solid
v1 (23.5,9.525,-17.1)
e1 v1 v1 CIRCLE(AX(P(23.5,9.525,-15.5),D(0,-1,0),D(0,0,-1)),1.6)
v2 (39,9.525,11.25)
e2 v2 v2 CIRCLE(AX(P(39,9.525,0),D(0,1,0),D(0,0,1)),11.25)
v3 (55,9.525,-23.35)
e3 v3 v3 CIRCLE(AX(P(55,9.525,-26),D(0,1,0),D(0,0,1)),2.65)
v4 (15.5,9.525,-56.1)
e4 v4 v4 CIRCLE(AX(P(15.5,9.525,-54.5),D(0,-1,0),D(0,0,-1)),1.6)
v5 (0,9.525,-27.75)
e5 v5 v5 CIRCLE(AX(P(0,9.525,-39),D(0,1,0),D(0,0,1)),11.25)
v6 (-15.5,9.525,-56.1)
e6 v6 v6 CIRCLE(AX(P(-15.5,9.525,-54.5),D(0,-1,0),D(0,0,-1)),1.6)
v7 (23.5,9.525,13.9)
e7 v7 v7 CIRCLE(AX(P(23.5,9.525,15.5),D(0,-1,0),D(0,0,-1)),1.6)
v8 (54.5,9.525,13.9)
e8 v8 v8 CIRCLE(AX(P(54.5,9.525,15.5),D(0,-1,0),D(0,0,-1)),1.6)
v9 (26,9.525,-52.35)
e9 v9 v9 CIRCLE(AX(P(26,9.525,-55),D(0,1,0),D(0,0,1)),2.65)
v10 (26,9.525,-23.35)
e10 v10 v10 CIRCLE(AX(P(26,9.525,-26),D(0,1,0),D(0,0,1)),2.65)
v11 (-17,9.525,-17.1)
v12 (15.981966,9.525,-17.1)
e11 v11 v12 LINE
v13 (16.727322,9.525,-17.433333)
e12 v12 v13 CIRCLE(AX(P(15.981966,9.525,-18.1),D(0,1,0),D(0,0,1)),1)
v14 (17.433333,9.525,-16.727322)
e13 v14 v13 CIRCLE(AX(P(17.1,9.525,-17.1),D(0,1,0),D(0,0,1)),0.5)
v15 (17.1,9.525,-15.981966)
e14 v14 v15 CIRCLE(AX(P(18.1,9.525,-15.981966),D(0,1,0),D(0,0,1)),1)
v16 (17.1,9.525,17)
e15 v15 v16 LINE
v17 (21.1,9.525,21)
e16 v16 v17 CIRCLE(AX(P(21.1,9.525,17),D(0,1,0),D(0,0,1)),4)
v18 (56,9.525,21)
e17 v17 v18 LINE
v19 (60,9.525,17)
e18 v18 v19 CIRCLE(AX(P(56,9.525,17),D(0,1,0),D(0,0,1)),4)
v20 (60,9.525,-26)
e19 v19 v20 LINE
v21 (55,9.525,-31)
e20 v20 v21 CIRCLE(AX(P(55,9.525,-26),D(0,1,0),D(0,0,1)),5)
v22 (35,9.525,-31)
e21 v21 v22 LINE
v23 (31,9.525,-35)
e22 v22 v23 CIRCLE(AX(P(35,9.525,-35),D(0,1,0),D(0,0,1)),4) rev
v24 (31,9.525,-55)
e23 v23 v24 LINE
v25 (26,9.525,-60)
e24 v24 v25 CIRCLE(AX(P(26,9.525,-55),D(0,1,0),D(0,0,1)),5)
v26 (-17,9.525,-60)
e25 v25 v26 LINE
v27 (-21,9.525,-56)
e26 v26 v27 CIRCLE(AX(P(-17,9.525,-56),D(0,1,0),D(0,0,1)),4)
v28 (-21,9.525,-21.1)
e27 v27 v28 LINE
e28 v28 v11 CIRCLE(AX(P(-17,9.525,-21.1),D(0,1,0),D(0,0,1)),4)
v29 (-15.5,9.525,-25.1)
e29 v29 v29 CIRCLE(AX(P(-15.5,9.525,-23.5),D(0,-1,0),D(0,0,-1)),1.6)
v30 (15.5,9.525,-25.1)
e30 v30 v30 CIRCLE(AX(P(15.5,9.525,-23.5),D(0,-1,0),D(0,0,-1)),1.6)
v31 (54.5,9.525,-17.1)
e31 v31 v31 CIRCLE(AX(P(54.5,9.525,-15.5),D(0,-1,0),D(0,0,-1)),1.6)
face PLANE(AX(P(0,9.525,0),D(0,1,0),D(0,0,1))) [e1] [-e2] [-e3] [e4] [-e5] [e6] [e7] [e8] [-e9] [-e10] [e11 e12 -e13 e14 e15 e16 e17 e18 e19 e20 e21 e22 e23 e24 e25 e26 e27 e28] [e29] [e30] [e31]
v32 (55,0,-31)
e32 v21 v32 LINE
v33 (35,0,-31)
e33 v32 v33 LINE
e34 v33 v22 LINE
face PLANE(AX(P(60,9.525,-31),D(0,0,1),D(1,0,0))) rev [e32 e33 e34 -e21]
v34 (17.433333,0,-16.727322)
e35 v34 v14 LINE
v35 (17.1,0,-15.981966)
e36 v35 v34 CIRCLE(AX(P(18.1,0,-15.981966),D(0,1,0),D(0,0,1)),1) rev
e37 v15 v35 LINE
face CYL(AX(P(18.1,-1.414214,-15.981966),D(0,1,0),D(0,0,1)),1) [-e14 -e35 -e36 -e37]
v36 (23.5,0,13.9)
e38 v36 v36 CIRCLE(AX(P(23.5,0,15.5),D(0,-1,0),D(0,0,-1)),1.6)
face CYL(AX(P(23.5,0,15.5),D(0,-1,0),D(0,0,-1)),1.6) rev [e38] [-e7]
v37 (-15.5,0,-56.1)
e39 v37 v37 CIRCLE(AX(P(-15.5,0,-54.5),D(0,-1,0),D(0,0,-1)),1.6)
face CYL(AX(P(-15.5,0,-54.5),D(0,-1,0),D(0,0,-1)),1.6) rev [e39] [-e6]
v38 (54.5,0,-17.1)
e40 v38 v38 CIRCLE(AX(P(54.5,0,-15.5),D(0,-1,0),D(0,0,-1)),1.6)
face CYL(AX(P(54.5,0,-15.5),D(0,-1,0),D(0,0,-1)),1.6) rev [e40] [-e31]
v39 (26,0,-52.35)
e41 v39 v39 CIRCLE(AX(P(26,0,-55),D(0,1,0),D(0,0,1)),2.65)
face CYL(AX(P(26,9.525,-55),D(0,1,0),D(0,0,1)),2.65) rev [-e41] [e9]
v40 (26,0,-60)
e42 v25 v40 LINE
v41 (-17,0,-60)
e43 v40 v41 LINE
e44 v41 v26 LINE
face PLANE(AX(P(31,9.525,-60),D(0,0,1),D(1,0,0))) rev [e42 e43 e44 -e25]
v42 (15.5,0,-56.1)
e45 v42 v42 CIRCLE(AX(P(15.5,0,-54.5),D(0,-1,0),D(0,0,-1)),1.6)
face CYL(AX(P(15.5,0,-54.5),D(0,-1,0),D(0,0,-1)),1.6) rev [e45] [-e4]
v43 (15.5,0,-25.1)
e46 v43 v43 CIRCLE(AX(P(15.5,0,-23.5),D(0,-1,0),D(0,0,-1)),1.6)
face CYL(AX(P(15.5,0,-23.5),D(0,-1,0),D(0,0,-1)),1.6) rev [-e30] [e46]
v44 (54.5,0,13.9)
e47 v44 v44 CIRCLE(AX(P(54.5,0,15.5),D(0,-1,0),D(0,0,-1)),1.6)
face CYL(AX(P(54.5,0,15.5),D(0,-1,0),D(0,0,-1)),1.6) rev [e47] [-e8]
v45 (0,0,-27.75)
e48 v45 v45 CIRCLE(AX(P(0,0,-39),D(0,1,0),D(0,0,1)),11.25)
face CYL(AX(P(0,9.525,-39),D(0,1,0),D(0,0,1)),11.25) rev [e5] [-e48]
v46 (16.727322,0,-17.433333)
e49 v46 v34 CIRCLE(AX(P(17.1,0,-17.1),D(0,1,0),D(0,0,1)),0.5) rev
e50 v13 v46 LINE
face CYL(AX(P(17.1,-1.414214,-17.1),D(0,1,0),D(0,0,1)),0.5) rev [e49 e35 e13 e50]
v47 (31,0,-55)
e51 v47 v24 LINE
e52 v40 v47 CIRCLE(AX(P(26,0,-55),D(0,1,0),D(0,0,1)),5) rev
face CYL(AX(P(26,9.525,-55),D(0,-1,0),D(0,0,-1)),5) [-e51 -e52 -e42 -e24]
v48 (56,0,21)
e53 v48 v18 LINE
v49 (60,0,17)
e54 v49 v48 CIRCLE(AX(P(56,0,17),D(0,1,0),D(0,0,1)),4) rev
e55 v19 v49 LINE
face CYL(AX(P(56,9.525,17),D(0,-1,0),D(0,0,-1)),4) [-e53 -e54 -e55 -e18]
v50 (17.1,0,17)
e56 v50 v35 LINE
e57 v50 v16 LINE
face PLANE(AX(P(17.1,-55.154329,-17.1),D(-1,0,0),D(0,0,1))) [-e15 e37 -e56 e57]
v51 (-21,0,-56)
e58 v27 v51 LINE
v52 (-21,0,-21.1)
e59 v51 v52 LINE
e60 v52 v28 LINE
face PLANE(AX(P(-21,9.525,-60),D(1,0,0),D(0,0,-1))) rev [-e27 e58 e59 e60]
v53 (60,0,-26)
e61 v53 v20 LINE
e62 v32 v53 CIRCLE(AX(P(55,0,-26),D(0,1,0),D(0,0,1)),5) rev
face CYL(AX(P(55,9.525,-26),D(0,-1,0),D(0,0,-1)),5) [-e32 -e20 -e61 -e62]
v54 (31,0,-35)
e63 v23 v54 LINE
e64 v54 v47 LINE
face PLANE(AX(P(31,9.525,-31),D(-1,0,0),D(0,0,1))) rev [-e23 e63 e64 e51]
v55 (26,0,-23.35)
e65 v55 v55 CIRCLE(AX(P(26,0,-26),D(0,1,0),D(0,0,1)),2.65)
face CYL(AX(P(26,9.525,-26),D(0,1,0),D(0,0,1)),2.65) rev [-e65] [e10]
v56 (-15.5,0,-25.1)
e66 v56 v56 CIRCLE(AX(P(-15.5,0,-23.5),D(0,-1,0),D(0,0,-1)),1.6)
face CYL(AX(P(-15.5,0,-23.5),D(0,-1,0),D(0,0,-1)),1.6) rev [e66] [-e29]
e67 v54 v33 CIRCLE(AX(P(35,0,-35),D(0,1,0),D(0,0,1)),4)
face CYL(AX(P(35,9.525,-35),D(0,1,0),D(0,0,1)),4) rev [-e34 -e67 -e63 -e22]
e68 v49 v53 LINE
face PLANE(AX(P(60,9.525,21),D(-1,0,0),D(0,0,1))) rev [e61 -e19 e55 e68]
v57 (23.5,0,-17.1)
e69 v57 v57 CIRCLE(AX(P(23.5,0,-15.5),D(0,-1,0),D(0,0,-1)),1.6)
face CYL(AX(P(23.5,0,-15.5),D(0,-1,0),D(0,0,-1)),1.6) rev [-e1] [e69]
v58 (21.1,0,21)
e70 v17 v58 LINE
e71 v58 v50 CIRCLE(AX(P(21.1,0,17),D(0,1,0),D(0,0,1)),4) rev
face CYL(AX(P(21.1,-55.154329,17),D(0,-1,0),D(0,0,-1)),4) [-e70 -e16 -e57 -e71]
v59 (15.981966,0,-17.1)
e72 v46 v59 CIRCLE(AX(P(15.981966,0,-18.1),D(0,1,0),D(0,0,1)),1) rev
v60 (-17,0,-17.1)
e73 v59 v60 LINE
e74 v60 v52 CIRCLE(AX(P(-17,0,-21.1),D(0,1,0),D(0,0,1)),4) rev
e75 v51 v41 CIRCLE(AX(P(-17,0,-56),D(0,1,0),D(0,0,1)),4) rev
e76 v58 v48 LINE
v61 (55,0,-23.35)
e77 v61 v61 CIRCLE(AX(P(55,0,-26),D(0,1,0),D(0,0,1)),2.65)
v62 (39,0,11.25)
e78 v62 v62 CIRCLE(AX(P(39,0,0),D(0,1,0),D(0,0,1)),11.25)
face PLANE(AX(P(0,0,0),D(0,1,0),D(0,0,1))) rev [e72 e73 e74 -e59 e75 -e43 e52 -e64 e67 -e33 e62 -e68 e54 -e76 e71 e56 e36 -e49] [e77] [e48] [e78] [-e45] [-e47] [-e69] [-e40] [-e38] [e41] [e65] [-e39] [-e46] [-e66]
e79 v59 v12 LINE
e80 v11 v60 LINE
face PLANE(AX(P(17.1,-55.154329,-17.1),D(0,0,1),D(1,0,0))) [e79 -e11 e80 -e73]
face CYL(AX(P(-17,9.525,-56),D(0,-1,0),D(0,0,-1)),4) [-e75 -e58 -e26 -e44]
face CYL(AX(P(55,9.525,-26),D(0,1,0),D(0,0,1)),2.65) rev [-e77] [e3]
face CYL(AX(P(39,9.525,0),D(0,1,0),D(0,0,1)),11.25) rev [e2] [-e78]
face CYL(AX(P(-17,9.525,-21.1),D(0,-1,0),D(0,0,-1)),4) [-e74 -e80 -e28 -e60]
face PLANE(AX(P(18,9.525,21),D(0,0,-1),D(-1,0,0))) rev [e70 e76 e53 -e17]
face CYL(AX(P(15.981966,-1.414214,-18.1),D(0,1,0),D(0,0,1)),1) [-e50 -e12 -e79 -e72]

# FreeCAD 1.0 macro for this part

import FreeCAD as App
import Part
import Sketcher


def edges_at(feature, points):
    """Names of the edges that pass closest to the given points."""
    edges = feature.Shape.Edges
    near = lambda p: min(range(len(edges)), key=lambda i: edges[i].distToShape(Part.Vertex(*p))[0])
    return sorted({f"Edge{near(p) + 1}" for p in points})


def add_polygon(sketch, points):
    """Adds a closed chain of lines whose ends are joined by coincident constraints."""
    first, n = sketch.GeometryCount, len(points)
    for a, b in zip(points, points[1:] + points[:1]):
        sketch.addGeometry(Part.LineSegment(App.Vector(*a, 0), App.Vector(*b, 0)), False)
    for i in range(n):
        sketch.addConstraint(Sketcher.Constraint("Coincident", first + i, 2, first + (i + 1) % n, 1))

doc = App.newDocument("Part")
body = doc.addObject("PartDesign::Body", "Body")

sketch1 = body.newObject("Sketcher::SketchObject", "Sketch")
sketch1.AttachmentSupport = (doc.getObject("XZ_Plane"), [""])
sketch1.MapMode = "FlatFace"
add_polygon(sketch1, [(60, 21), (60, -31), (31, -31), (31, -60), (-21, -60), (-21, -18), (18, -18), (18, 21)])
sketch1.addConstraint(Sketcher.Constraint("Vertical", 0))
sketch1.addConstraint(Sketcher.Constraint("Horizontal", 1))
sketch1.addConstraint(Sketcher.Constraint("Vertical", 2))
sketch1.addConstraint(Sketcher.Constraint("Horizontal", 3))
sketch1.addConstraint(Sketcher.Constraint("Vertical", 4))
sketch1.addConstraint(Sketcher.Constraint("Horizontal", 5))
sketch1.addConstraint(Sketcher.Constraint("Vertical", 6))
sketch1.addConstraint(Sketcher.Constraint("Horizontal", 7))
sketch1.addConstraint(Sketcher.Constraint("Equal", 3, 0))
sketch1.addConstraint(Sketcher.Constraint("Equal", 1, 2))
sketch1.addConstraint(Sketcher.Constraint("Equal", 7, 4))
sketch1.addConstraint(Sketcher.Constraint("DistanceX", 1, 2, 1, 1, 29.0))
sketch1.addConstraint(Sketcher.Constraint("DistanceX", 3, 2, 3, 1, 52.0))
sketch1.addConstraint(Sketcher.Constraint("DistanceX", 5, 1, 5, 2, 39.0))
sketch1.addConstraint(Sketcher.Constraint("DistanceX", -1, 1, 0, 2, 60.0))
sketch1.addConstraint(Sketcher.Constraint("DistanceY", 0, 2, -1, 1, 31.0))
pad1 = body.newObject("PartDesign::Pad", "Pad")
pad1.Profile = sketch1
pad1.Length = 9.525
pad1.Reversed = True

sketch2 = body.newObject("Sketcher::SketchObject", "Sketch001")
sketch2.AttachmentSupport = (doc.getObject("XZ_Plane"), [""])
sketch2.MapMode = "FlatFace"
sketch2.AttachmentOffset = App.Placement(App.Vector(0, 0, -9.525), App.Rotation())
sketch2.addGeometry(Part.Circle(App.Vector(0, -39, 0), App.Vector(0, 0, 1), 11.25), False)
sketch2.addGeometry(Part.Circle(App.Vector(39, 0, 0), App.Vector(0, 0, 1), 11.25), False)
sketch2.addConstraint(Sketcher.Constraint("Equal", 0, 1))
sketch2.addConstraint(Sketcher.Constraint("PointOnObject", 0, 3, -2))
sketch2.addConstraint(Sketcher.Constraint("PointOnObject", 1, 3, -1))
sketch2.addConstraint(Sketcher.Constraint("Diameter", 0, 22.5))
sketch2.addConstraint(Sketcher.Constraint("DistanceY", 0, 3, -1, 1, 39.0))
sketch2.addConstraint(Sketcher.Constraint("DistanceX", -1, 1, 1, 3, 39.0))
doc.recompute()
hole = body.newObject("PartDesign::Hole", "Hole")
hole.Profile = sketch2
hole.ThreadType = "None"
hole.Diameter = 22.5
hole.DepthType = "ThroughAll"
hole.Reversed = True

sketch3 = body.newObject("Sketcher::SketchObject", "Sketch002")
sketch3.AttachmentSupport = (doc.getObject("XZ_Plane"), [""])
sketch3.MapMode = "FlatFace"
sketch3.addGeometry(Part.Circle(App.Vector(54.5, -15.5, 0), App.Vector(0, 0, 1), 1.6), False)
sketch3.addGeometry(Part.Circle(App.Vector(23.5, -15.5, 0), App.Vector(0, 0, 1), 1.6), False)
sketch3.addGeometry(Part.Circle(App.Vector(23.5, 15.5, 0), App.Vector(0, 0, 1), 1.6), False)
sketch3.addGeometry(Part.Circle(App.Vector(54.5, 15.5, 0), App.Vector(0, 0, 1), 1.6), False)
sketch3.addGeometry(Part.Circle(App.Vector(15.5, -54.5, 0), App.Vector(0, 0, 1), 1.6), False)
sketch3.addGeometry(Part.Circle(App.Vector(15.5, -23.5, 0), App.Vector(0, 0, 1), 1.6), False)
sketch3.addGeometry(Part.Circle(App.Vector(-15.5, -23.5, 0), App.Vector(0, 0, 1), 1.6), False)
sketch3.addGeometry(Part.Circle(App.Vector(-15.5, -54.5, 0), App.Vector(0, 0, 1), 1.6), False)
sketch3.addConstraint(Sketcher.Constraint("Equal", 0, 1))
sketch3.addConstraint(Sketcher.Constraint("Equal", 1, 2))
sketch3.addConstraint(Sketcher.Constraint("Equal", 2, 3))
sketch3.addConstraint(Sketcher.Constraint("Equal", 3, 4))
sketch3.addConstraint(Sketcher.Constraint("Equal", 4, 5))
sketch3.addConstraint(Sketcher.Constraint("Equal", 5, 6))
sketch3.addConstraint(Sketcher.Constraint("Equal", 6, 7))
sketch3.addConstraint(Sketcher.Constraint("Symmetric", 5, 3, 6, 3, -2))
sketch3.addConstraint(Sketcher.Constraint("Symmetric", 4, 3, 7, 3, -2))
sketch3.addConstraint(Sketcher.Constraint("Symmetric", 1, 3, 2, 3, -1))
sketch3.addConstraint(Sketcher.Constraint("Symmetric", 0, 3, 3, 3, -1))
sketch3.addConstraint(Sketcher.Constraint("Horizontal", 0, 3, 1, 3))
sketch3.addConstraint(Sketcher.Constraint("Vertical", 4, 3, 5, 3))
sketch3.addConstraint(Sketcher.Constraint("Diameter", 0, 3.2))
sketch3.addConstraint(Sketcher.Constraint("DistanceX", 1, 3, 0, 3, 31.0))
sketch3.addConstraint(Sketcher.Constraint("DistanceY", 1, 3, 2, 3, 31.0))
sketch3.addConstraint(Sketcher.Constraint("DistanceX", 4, 3, 1, 3, 8.0))
sketch3.addConstraint(Sketcher.Constraint("DistanceY", 4, 3, 1, 3, 39.0))
sketch3.addConstraint(Sketcher.Constraint("DistanceY", 5, 3, 1, 3, 8.0))
sketch3.addConstraint(Sketcher.Constraint("DistanceX", 6, 3, 5, 3, 31.0))
doc.recompute()
hole2 = body.newObject("PartDesign::Hole", "Hole001")
hole2.Profile = sketch3
hole2.ThreadType = "None"
hole2.Diameter = 3.2
hole2.DepthType = "ThroughAll"

sketch4 = body.newObject("Sketcher::SketchObject", "Sketch003")
sketch4.AttachmentSupport = (doc.getObject("XZ_Plane"), [""])
sketch4.MapMode = "FlatFace"
sketch4.AttachmentOffset = App.Placement(App.Vector(0, 0, -9.525), App.Rotation())
sketch4.addGeometry(Part.Circle(App.Vector(26, -55, 0), App.Vector(0, 0, 1), 2.65), False)
sketch4.addGeometry(Part.Circle(App.Vector(26, -26, 0), App.Vector(0, 0, 1), 2.65), False)
sketch4.addGeometry(Part.Circle(App.Vector(55, -26, 0), App.Vector(0, 0, 1), 2.65), False)
sketch4.addConstraint(Sketcher.Constraint("Equal", 0, 1))
sketch4.addConstraint(Sketcher.Constraint("Equal", 1, 2))
sketch4.addConstraint(Sketcher.Constraint("Horizontal", 1, 3, 2, 3))
sketch4.addConstraint(Sketcher.Constraint("Vertical", 0, 3, 1, 3))
sketch4.addConstraint(Sketcher.Constraint("Diameter", 0, 5.3))
sketch4.addConstraint(Sketcher.Constraint("DistanceX", -1, 1, 0, 3, 26.0))
sketch4.addConstraint(Sketcher.Constraint("DistanceY", 0, 3, -1, 1, 55.0))
sketch4.addConstraint(Sketcher.Constraint("DistanceY", 1, 3, -1, 1, 26.0))
sketch4.addConstraint(Sketcher.Constraint("DistanceX", -1, 1, 2, 3, 55.0))
doc.recompute()
hole3 = body.newObject("PartDesign::Hole", "Hole002")
hole3.Profile = sketch4
hole3.ThreadType = "None"
hole3.Diameter = 5.3
hole3.DepthType = "ThroughAll"
hole3.Reversed = True

sketch5 = body.newObject("Sketcher::SketchObject", "Sketch004")
sketch5.AttachmentSupport = (doc.getObject("XZ_Plane"), [""])
sketch5.MapMode = "FlatFace"
sketch5.AttachmentOffset = App.Placement(App.Vector(0, 0, -9.525), App.Rotation())
add_polygon(sketch5, [(-21, -17.1), (17.1, -17.1), (17.1, 21), (18, 21), (18, -18), (-21, -18)])
sketch5.addConstraint(Sketcher.Constraint("Horizontal", 0))
sketch5.addConstraint(Sketcher.Constraint("Vertical", 1))
sketch5.addConstraint(Sketcher.Constraint("Horizontal", 2))
sketch5.addConstraint(Sketcher.Constraint("Vertical", 3))
sketch5.addConstraint(Sketcher.Constraint("Horizontal", 4))
sketch5.addConstraint(Sketcher.Constraint("Vertical", 5))
sketch5.addConstraint(Sketcher.Constraint("Equal", 0, 1))
sketch5.addConstraint(Sketcher.Constraint("Equal", 4, 3))
sketch5.addConstraint(Sketcher.Constraint("DistanceX", 4, 2, 4, 1, 39.0))
sketch5.addConstraint(Sketcher.Constraint("DistanceX", 0, 1, 0, 2, 38.1))
sketch5.addConstraint(Sketcher.Constraint("DistanceY", -1, 1, 1, 2, 21.0))
sketch5.addConstraint(Sketcher.Constraint("DistanceX", -1, 1, 2, 2, 18.0))
pad2 = body.newObject("PartDesign::Pad", "Pad001")
pad2.Profile = sketch5
pad2.Length = 9.525

sketch6 = body.newObject("Sketcher::SketchObject", "Sketch005")
sketch6.AttachmentSupport = (doc.getObject("XZ_Plane"), [""])
sketch6.MapMode = "FlatFace"
sketch6.AttachmentOffset = App.Placement(App.Vector(0, 0, -9.525), App.Rotation())
sketch6.addGeometry(Part.Circle(App.Vector(17.1, -17.1, 0), App.Vector(0, 0, 1), 0.5), False)
sketch6.addConstraint(Sketcher.Constraint("Diameter", 0, 1.0))
sketch6.addConstraint(Sketcher.Constraint("DistanceX", -1, 1, 0, 3, 17.1))
sketch6.addConstraint(Sketcher.Constraint("DistanceY", 0, 3, -1, 1, 17.1))
pocket1 = body.newObject("PartDesign::Pocket", "Pocket")
pocket1.Profile = sketch6
pocket1.Length = 9.525
pocket1.Reversed = True
doc.recompute()

fillet = body.newObject("PartDesign::Fillet", "Fillet")
fillet.Base = (pocket1, edges_at(pocket1, [
    (17.1, 4.763, 21),
    (-21, 4.763, -17.1),
    (-21, 4.763, -60),
    (31, 4.763, -31),
    (60, 4.763, 21),
]))
fillet.Radius = 4
doc.recompute()

fillet2 = body.newObject("PartDesign::Fillet", "Fillet001")
fillet2.Base = (fillet, edges_at(fillet, [(31, 4.763, -60), (60, 4.763, -31)]))
fillet2.Radius = 5
doc.recompute()

fillet3 = body.newObject("PartDesign::Fillet", "Fillet002")
fillet3.Base = (fillet2, edges_at(fillet2, [(16.6, 4.763, -17.1), (17.1, 4.763, -16.6)]))
fillet3.Radius = 1

doc.recompute()
